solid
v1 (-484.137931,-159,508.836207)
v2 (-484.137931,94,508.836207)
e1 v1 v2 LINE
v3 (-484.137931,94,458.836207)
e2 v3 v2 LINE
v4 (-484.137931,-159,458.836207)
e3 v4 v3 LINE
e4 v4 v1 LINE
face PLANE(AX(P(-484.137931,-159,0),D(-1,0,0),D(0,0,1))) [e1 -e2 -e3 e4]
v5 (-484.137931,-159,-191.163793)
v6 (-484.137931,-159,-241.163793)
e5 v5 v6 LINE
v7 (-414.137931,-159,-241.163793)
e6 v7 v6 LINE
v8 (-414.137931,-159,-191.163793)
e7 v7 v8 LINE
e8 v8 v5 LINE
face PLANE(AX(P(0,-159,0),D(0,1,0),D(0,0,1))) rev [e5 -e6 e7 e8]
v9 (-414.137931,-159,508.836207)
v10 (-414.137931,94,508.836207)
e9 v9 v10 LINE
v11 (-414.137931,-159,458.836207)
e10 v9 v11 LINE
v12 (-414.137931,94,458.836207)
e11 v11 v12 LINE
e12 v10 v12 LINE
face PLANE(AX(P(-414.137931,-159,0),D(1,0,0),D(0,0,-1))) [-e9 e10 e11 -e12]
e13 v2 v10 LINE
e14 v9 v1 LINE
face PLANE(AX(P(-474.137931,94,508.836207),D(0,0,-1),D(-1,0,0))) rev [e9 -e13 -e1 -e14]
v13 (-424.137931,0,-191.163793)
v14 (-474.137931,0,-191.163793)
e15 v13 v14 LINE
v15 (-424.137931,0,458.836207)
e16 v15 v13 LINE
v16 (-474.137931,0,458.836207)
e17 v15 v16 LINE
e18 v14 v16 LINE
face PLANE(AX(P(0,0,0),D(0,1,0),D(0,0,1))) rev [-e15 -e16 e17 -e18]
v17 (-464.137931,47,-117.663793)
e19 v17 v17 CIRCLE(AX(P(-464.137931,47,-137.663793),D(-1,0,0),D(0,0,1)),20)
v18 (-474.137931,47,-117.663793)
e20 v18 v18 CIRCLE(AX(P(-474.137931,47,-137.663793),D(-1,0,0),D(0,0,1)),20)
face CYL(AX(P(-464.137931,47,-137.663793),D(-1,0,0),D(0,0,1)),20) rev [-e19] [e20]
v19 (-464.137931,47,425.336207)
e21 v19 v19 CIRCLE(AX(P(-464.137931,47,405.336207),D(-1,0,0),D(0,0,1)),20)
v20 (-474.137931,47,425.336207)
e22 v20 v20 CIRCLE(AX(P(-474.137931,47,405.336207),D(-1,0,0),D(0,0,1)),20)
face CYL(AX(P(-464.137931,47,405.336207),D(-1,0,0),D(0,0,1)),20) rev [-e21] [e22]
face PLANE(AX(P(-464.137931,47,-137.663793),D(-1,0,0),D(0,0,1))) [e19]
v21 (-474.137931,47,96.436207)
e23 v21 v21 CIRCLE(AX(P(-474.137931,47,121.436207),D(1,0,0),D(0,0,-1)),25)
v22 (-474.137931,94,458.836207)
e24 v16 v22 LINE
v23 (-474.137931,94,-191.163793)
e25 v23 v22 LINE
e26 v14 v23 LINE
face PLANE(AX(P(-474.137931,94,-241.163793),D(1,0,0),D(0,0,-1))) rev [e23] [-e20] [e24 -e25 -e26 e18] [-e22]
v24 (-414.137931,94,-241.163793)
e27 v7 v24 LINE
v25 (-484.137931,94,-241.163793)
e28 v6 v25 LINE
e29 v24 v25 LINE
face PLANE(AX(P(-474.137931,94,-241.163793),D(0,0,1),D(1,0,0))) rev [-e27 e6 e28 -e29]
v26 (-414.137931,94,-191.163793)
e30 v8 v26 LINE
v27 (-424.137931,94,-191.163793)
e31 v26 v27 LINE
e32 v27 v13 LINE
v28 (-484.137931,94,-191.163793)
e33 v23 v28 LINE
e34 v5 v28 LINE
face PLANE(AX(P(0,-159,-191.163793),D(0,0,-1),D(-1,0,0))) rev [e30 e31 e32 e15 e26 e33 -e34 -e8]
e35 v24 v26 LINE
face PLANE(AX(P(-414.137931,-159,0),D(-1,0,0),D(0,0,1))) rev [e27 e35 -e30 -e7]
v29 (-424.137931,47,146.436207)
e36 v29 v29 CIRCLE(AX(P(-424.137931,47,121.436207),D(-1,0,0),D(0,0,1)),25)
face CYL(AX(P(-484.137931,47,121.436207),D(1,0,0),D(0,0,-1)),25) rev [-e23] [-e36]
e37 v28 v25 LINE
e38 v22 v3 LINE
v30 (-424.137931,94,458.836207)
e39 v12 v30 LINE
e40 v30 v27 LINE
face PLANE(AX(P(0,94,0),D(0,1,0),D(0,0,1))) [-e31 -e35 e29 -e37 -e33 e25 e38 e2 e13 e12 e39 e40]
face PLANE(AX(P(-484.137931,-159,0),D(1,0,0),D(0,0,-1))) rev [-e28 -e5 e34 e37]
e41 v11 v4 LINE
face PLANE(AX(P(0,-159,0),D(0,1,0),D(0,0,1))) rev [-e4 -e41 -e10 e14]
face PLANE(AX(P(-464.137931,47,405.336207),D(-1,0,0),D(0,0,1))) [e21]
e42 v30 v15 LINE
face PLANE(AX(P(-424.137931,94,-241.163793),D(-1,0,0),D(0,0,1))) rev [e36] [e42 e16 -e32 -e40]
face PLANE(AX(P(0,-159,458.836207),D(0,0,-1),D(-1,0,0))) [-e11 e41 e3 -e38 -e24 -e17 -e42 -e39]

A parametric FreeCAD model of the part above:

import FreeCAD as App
import Part
import Sketcher
from FreeCAD import Vector
Q = App.Units.Quantity


def add_polygon(sketch, points):
    """Adds a closed chain of lines whose ends are joined by coincident constraints."""
    first, n = sketch.GeometryCount, len(points)
    for a, b in zip(points, points[1:] + points[:1]):
        sketch.addGeometry(Part.LineSegment(App.Vector(*a, 0), App.Vector(*b, 0)), False)
    for i in range(n):
        sketch.addConstraint(Sketcher.Constraint("Coincident", first + i, 2, first + (i + 1) % n, 1))

doc = App.newDocument("Part")
body = doc.addObject("PartDesign::Body", "Body")

# Sketch on XZ plane
sketch1 = body.newObject("Sketcher::SketchObject", "Sketch")
sketch1.AttachmentSupport = (doc.getObject("XZ_Plane"), [""])
sketch1.MapMode = "FlatFace"
add_polygon(sketch1, [(-474.137931, -241.163793), (-474.137931, 508.836207), (-424.137931, 508.836207), (-424.137931, -241.163793)])  # lines 0-3
sketch1.addConstraint([
    Sketcher.Constraint("Vertical", 0),
    Sketcher.Constraint("Horizontal", 1),
    Sketcher.Constraint("Vertical", 2),
    Sketcher.Constraint("Horizontal", 3),
    Sketcher.Constraint("DistanceX", 1, 1, 1, 2, Q("50 mm")),
    Sketcher.Constraint("DistanceY", 0, 1, 0, 2, Q("750 mm")),
    Sketcher.Constraint("DistanceX", 0, 2, -1, 1, Q("474.137931 mm")),
    Sketcher.Constraint("DistanceY", -1, 1, 0, 2, Q("508.836207 mm")),
])
pad1 = body.newObject("PartDesign::Pad", "Pad")
pad1.Profile = sketch1
pad1.Length = 94
pad1.Reversed = True

# Sketch on XZ plane
sketch2 = body.newObject("Sketcher::SketchObject", "Sketch001")
sketch2.AttachmentSupport = (doc.getObject("XZ_Plane"), [""])
sketch2.MapMode = "FlatFace"
sketch2.AttachmentOffset = App.Placement(Vector(0, 0, -94), App.Rotation())
add_polygon(sketch2, [(-484.137931, -241.163793), (-484.137931, -191.163793), (-414.137931, -191.163793), (-414.137931, -241.163793)])  # lines 0-3
add_polygon(sketch2, [(-484.137931, 458.836207), (-484.137931, 508.836207), (-414.137931, 508.836207), (-414.137931, 458.836207)])  # lines 4-7
sketch2.addConstraint([
    Sketcher.Constraint("Vertical", 0),
    Sketcher.Constraint("Horizontal", 1),
    Sketcher.Constraint("Vertical", 2),
    Sketcher.Constraint("Horizontal", 3),
    Sketcher.Constraint("Vertical", 4),
    Sketcher.Constraint("Horizontal", 5),
    Sketcher.Constraint("Vertical", 6),
    Sketcher.Constraint("Horizontal", 7),
    Sketcher.Constraint("Vertical", 3, 2, 4, 2),
    Sketcher.Constraint("Vertical", 2, 2, 5, 2),
    Sketcher.Constraint("Equal", 2, 4),
    Sketcher.Constraint("DistanceX", 1, 1, 1, 2, Q("70 mm")),
    Sketcher.Constraint("DistanceY", 0, 1, 0, 2, Q("50 mm")),
    Sketcher.Constraint("DistanceY", 0, 2, 4, 2, Q("700 mm")),
    Sketcher.Constraint("DistanceX", 0, 2, -1, 1, Q("484.137931 mm")),
    Sketcher.Constraint("DistanceY", 0, 2, -1, 1, Q("191.163793 mm")),
])
pad2 = body.newObject("PartDesign::Pad", "Pad001")
pad2.Profile = sketch2
pad2.Length = 253

# Sketch on YZ plane
sketch3 = body.newObject("Sketcher::SketchObject", "Sketch002")
sketch3.AttachmentSupport = (doc.getObject("YZ_Plane"), [""])
sketch3.MapMode = "FlatFace"
sketch3.AttachmentOffset = App.Placement(Vector(0, 0, -474.137931), App.Rotation())
sketch3.addGeometry([
    Part.Circle(Vector(47, -137.663793, 0), Vector(0, 0, 1), 20),
    Part.Circle(Vector(47, 405.336207, 0), Vector(0, 0, 1), 20),
], False)
sketch3.addConstraint([
    Sketcher.Constraint("Equal", 0, 1),
    Sketcher.Constraint("Vertical", 0, 3, 1, 3),
    Sketcher.Constraint("Diameter", 0, Q("40 mm")),
    Sketcher.Constraint("DistanceX", -1, 1, 0, 3, Q("47 mm")),
    Sketcher.Constraint("DistanceY", 0, 3, 1, 3, Q("543 mm")),
    Sketcher.Constraint("DistanceY", 0, 3, -1, 1, Q("137.663793 mm")),
])
pocket1 = body.newObject("PartDesign::Pocket", "Pocket")
pocket1.Profile = sketch3
pocket1.Length = 10
pocket1.Reversed = True

# Sketch on YZ plane
sketch4 = body.newObject("Sketcher::SketchObject", "Sketch003")
sketch4.AttachmentSupport = (doc.getObject("YZ_Plane"), [""])
sketch4.MapMode = "FlatFace"
sketch4.AttachmentOffset = App.Placement(Vector(0, 0, -424.137931), App.Rotation())
sketch4.addGeometry(Part.Circle(Vector(47, 121.436207, 0), Vector(0, 0, 1), 25), False)
sketch4.addConstraint([
    Sketcher.Constraint("Diameter", 0, Q("50 mm")),
    Sketcher.Constraint("DistanceX", -1, 1, 0, 3, Q("47 mm")),
    Sketcher.Constraint("DistanceY", -1, 1, 0, 3, Q("121.436207 mm")),
])
pocket2 = body.newObject("PartDesign::Pocket", "Pocket001")
pocket2.Profile = sketch4
pocket2.Type = "ThroughAll"
pocket2.Midplane = True

doc.recompute()
